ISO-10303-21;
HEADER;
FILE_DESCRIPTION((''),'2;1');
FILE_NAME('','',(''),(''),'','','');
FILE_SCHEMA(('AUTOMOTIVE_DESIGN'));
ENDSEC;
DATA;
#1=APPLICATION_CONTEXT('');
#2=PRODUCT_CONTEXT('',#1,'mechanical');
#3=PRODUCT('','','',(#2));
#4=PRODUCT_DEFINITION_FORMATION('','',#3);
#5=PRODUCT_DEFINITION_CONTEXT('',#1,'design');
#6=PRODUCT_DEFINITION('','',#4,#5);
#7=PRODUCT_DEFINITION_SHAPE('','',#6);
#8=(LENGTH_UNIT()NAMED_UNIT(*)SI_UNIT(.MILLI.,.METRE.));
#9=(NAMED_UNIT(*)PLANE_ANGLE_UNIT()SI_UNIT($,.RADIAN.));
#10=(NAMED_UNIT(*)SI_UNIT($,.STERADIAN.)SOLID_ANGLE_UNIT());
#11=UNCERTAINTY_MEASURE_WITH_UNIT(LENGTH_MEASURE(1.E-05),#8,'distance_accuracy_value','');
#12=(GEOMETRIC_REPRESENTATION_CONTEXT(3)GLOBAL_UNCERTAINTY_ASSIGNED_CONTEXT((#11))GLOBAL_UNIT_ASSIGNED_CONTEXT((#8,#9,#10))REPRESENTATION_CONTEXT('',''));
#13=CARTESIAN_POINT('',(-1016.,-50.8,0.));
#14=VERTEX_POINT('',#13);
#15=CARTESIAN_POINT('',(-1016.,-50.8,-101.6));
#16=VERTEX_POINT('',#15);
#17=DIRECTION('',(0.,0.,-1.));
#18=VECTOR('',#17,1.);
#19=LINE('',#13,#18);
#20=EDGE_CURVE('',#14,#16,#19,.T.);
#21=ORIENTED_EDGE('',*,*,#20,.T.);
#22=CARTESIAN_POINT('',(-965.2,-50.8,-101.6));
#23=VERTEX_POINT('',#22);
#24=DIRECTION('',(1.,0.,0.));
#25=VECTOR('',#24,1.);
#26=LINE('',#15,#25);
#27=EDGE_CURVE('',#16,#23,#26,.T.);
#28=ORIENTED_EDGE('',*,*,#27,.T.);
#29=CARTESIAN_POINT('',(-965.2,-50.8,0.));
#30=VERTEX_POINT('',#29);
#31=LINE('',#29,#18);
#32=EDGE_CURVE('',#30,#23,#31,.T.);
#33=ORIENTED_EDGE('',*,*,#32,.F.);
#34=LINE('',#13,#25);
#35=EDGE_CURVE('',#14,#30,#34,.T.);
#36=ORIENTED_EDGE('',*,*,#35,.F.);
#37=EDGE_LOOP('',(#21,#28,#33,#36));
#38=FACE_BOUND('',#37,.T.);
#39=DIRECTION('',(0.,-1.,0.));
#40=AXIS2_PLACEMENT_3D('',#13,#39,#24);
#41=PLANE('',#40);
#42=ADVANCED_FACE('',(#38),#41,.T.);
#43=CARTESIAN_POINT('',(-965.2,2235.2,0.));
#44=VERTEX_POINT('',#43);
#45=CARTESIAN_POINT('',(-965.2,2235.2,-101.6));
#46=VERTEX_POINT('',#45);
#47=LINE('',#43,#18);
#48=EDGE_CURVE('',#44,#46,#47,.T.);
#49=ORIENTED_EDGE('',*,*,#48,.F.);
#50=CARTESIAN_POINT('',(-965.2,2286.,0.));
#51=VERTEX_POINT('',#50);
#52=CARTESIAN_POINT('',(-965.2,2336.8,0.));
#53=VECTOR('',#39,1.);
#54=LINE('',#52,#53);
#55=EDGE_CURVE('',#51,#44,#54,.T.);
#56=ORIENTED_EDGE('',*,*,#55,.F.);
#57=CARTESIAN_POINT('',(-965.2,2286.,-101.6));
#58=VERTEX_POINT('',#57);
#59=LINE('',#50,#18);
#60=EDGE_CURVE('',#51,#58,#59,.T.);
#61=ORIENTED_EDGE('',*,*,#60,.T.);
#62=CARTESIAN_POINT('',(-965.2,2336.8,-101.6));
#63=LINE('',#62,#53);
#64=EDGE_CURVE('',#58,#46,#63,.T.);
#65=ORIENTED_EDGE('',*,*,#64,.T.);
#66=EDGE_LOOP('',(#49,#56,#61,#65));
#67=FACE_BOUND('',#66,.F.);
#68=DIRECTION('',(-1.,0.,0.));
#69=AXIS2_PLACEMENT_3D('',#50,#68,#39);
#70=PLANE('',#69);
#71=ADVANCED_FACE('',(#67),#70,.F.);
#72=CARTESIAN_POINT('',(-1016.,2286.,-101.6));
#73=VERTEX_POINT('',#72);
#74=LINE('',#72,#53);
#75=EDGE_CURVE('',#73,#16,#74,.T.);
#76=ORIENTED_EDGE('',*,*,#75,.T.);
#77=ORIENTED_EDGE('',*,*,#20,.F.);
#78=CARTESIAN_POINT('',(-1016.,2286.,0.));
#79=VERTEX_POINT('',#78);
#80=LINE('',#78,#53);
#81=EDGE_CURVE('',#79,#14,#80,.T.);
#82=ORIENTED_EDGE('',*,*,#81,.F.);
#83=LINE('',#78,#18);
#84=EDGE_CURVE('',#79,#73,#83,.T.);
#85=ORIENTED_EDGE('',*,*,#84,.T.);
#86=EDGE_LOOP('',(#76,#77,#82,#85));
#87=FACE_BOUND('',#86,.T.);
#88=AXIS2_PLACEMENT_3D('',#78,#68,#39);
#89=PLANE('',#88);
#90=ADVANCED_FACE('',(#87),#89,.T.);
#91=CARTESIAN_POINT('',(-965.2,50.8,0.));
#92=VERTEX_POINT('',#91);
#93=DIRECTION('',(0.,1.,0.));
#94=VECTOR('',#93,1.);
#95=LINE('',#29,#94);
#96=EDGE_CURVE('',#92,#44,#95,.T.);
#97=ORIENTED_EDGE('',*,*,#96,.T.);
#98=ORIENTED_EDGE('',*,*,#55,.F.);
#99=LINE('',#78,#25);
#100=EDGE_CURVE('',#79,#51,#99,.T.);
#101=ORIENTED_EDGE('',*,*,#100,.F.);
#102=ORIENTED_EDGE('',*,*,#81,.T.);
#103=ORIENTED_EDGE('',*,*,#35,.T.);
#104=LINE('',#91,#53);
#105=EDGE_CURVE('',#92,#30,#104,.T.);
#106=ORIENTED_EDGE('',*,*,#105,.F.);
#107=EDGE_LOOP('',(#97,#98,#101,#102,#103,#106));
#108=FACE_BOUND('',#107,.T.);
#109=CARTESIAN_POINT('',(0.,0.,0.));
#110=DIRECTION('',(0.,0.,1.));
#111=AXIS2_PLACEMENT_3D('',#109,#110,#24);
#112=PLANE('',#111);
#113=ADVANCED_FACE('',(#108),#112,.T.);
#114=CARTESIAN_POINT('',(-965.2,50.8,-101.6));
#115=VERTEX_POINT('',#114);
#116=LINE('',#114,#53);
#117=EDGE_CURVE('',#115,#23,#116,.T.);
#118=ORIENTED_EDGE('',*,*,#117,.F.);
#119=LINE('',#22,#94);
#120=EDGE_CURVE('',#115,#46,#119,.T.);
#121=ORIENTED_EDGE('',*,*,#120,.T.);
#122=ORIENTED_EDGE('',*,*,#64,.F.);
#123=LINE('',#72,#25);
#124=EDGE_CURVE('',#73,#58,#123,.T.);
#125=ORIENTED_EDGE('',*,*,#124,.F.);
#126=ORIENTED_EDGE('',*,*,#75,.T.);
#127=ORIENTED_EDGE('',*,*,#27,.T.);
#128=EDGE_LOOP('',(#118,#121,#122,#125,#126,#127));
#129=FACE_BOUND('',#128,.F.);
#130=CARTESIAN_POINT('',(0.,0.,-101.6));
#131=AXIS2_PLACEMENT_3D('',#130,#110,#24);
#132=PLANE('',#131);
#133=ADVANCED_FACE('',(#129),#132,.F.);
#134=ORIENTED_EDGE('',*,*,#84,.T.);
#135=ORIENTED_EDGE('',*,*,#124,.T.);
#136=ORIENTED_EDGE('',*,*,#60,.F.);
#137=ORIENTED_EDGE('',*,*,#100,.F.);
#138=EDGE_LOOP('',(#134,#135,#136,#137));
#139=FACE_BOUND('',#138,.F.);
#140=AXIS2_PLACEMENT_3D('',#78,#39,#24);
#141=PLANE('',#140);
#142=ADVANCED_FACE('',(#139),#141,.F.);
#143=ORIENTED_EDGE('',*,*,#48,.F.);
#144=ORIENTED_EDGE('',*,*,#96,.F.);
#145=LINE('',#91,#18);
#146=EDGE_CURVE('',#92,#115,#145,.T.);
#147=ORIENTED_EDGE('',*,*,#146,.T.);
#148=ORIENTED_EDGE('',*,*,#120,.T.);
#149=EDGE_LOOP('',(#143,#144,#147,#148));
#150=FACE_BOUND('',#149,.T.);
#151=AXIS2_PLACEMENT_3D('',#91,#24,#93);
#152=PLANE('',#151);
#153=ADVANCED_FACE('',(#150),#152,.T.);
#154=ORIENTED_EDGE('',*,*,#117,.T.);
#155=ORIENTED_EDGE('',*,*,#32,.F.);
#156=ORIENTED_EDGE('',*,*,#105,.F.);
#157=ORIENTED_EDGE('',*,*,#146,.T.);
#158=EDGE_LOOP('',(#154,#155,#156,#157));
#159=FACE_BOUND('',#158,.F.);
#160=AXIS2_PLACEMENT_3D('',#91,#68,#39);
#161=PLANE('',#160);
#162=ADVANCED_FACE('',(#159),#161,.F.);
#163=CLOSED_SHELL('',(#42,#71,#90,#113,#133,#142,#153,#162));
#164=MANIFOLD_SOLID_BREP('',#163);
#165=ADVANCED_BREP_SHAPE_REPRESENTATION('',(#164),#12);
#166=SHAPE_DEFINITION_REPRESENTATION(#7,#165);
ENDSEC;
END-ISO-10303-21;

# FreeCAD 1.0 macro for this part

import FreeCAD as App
import Part
import Sketcher
Q = App.Units.Quantity

doc = App.newDocument("Part")
params = doc.addObject("Spreadsheet::Sheet", "Params")
for row, (alias, value) in enumerate([
    ("sketch1_width", "2 in"),
    ("sketch1_height", "92 in"),
    ("pad1_length", "4 in"),
], start=1):
    params.set(f"A{row}", alias)
    params.set(f"B{row}", "=" + value)
    params.setAlias(f"B{row}", alias)

body = doc.addObject("PartDesign::Body", "Body")

# Sketch on XY plane
sketch1 = doc.addObject("Sketcher::SketchObject", "Sketch")
body.addObject(sketch1)
sketch1.AttachmentSupport = (doc.XY_Plane, [""])
sketch1.MapMode = "FlatFace"
sketch1.addGeometry(Part.LineSegment(App.Vector(-965.2, -50.8, 0), App.Vector(-965.2, 2286, 0)), False)
sketch1.addGeometry(Part.LineSegment(App.Vector(-965.2, 2286, 0), App.Vector(-1016, 2286, 0)), False)
sketch1.addGeometry(Part.LineSegment(App.Vector(-1016, 2286, 0), App.Vector(-1016, -50.8, 0)), False)
sketch1.addGeometry(Part.LineSegment(App.Vector(-1016, -50.8, 0), App.Vector(-965.2, -50.8, 0)), False)
sketch1.addConstraint(Sketcher.Constraint("Coincident", 0, 2, 1, 1))
sketch1.addConstraint(Sketcher.Constraint("Coincident", 1, 2, 2, 1))
sketch1.addConstraint(Sketcher.Constraint("Coincident", 2, 2, 3, 1))
sketch1.addConstraint(Sketcher.Constraint("Coincident", 3, 2, 0, 1))
sketch1.addConstraint(Sketcher.Constraint("Vertical", 0))
sketch1.addConstraint(Sketcher.Constraint("Horizontal", 1))
sketch1.addConstraint(Sketcher.Constraint("Vertical", 2))
sketch1.addConstraint(Sketcher.Constraint("Horizontal", 3))
sketch1.addConstraint(Sketcher.Constraint("DistanceX", 1, 2, 1, 1, Q("2 in")))
sketch1.addConstraint(Sketcher.Constraint("DistanceY", 0, 1, 0, 2, Q("92 in")))
sketch1.addConstraint(Sketcher.Constraint("DistanceX", 0, 2, -1, 1, Q("38 in")))
sketch1.addConstraint(Sketcher.Constraint("DistanceY", -1, 1, 0, 2, Q("90 in")))
sketch1.setExpression("Constraints[8]", "Params.sketch1_width")
sketch1.setExpression("Constraints[9]", "Params.sketch1_height")
pad1 = doc.addObject("PartDesign::Pad", "Pad")
body.addObject(pad1)
pad1.Profile = sketch1
pad1.setExpression("Length", "Params.pad1_length")
pad1.Reversed = True

doc.recompute()
